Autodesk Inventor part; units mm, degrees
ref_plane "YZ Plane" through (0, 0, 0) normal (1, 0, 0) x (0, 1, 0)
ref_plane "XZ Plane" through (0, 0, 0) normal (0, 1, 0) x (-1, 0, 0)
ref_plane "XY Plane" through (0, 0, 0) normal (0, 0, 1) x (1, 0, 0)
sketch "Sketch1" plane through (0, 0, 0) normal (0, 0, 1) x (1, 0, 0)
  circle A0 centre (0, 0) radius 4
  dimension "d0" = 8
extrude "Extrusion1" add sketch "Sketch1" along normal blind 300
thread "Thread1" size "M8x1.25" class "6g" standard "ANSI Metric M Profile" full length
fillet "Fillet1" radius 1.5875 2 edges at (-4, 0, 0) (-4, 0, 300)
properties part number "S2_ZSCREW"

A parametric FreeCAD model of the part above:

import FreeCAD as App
import Part
import Sketcher

V = App.Vector


def edges_at(feature, points):
    """Names of the edges that pass closest to the given points."""
    edges = feature.Shape.Edges
    near = lambda p: min(range(len(edges)), key=lambda i: edges[i].distToShape(Part.Vertex(*p))[0])
    return sorted({f"Edge{near(p) + 1}" for p in points})

doc = App.newDocument("Part")
body = doc.addObject("PartDesign::Body", "Body")

sketch1 = doc.addObject("Sketcher::SketchObject", "Sketch")
body.addObject(sketch1)
sketch1.AttachmentSupport = (doc.XY_Plane, [""])
sketch1.MapMode = "FlatFace"
sketch1.addGeometry(Part.Circle(V(0, 0, 0), V(0, 0, 1), 4), False)
sketch1.addConstraint(Sketcher.Constraint("Coincident", 0, 3, -1, 1))
sketch1.addConstraint(Sketcher.Constraint("Diameter", 0, 8.0))
pad1 = doc.addObject("PartDesign::Pad", "Pad")
body.addObject(pad1)
pad1.Profile = sketch1
pad1.Length = 300
doc.recompute()

fillet = doc.addObject("PartDesign::Fillet", "Fillet")
body.addObject(fillet)
fillet.Base = (pad1, edges_at(pad1, [(-4, 0, 0), (-4, 0, 300)]))
fillet.Radius = 1.5875

doc.recompute()
